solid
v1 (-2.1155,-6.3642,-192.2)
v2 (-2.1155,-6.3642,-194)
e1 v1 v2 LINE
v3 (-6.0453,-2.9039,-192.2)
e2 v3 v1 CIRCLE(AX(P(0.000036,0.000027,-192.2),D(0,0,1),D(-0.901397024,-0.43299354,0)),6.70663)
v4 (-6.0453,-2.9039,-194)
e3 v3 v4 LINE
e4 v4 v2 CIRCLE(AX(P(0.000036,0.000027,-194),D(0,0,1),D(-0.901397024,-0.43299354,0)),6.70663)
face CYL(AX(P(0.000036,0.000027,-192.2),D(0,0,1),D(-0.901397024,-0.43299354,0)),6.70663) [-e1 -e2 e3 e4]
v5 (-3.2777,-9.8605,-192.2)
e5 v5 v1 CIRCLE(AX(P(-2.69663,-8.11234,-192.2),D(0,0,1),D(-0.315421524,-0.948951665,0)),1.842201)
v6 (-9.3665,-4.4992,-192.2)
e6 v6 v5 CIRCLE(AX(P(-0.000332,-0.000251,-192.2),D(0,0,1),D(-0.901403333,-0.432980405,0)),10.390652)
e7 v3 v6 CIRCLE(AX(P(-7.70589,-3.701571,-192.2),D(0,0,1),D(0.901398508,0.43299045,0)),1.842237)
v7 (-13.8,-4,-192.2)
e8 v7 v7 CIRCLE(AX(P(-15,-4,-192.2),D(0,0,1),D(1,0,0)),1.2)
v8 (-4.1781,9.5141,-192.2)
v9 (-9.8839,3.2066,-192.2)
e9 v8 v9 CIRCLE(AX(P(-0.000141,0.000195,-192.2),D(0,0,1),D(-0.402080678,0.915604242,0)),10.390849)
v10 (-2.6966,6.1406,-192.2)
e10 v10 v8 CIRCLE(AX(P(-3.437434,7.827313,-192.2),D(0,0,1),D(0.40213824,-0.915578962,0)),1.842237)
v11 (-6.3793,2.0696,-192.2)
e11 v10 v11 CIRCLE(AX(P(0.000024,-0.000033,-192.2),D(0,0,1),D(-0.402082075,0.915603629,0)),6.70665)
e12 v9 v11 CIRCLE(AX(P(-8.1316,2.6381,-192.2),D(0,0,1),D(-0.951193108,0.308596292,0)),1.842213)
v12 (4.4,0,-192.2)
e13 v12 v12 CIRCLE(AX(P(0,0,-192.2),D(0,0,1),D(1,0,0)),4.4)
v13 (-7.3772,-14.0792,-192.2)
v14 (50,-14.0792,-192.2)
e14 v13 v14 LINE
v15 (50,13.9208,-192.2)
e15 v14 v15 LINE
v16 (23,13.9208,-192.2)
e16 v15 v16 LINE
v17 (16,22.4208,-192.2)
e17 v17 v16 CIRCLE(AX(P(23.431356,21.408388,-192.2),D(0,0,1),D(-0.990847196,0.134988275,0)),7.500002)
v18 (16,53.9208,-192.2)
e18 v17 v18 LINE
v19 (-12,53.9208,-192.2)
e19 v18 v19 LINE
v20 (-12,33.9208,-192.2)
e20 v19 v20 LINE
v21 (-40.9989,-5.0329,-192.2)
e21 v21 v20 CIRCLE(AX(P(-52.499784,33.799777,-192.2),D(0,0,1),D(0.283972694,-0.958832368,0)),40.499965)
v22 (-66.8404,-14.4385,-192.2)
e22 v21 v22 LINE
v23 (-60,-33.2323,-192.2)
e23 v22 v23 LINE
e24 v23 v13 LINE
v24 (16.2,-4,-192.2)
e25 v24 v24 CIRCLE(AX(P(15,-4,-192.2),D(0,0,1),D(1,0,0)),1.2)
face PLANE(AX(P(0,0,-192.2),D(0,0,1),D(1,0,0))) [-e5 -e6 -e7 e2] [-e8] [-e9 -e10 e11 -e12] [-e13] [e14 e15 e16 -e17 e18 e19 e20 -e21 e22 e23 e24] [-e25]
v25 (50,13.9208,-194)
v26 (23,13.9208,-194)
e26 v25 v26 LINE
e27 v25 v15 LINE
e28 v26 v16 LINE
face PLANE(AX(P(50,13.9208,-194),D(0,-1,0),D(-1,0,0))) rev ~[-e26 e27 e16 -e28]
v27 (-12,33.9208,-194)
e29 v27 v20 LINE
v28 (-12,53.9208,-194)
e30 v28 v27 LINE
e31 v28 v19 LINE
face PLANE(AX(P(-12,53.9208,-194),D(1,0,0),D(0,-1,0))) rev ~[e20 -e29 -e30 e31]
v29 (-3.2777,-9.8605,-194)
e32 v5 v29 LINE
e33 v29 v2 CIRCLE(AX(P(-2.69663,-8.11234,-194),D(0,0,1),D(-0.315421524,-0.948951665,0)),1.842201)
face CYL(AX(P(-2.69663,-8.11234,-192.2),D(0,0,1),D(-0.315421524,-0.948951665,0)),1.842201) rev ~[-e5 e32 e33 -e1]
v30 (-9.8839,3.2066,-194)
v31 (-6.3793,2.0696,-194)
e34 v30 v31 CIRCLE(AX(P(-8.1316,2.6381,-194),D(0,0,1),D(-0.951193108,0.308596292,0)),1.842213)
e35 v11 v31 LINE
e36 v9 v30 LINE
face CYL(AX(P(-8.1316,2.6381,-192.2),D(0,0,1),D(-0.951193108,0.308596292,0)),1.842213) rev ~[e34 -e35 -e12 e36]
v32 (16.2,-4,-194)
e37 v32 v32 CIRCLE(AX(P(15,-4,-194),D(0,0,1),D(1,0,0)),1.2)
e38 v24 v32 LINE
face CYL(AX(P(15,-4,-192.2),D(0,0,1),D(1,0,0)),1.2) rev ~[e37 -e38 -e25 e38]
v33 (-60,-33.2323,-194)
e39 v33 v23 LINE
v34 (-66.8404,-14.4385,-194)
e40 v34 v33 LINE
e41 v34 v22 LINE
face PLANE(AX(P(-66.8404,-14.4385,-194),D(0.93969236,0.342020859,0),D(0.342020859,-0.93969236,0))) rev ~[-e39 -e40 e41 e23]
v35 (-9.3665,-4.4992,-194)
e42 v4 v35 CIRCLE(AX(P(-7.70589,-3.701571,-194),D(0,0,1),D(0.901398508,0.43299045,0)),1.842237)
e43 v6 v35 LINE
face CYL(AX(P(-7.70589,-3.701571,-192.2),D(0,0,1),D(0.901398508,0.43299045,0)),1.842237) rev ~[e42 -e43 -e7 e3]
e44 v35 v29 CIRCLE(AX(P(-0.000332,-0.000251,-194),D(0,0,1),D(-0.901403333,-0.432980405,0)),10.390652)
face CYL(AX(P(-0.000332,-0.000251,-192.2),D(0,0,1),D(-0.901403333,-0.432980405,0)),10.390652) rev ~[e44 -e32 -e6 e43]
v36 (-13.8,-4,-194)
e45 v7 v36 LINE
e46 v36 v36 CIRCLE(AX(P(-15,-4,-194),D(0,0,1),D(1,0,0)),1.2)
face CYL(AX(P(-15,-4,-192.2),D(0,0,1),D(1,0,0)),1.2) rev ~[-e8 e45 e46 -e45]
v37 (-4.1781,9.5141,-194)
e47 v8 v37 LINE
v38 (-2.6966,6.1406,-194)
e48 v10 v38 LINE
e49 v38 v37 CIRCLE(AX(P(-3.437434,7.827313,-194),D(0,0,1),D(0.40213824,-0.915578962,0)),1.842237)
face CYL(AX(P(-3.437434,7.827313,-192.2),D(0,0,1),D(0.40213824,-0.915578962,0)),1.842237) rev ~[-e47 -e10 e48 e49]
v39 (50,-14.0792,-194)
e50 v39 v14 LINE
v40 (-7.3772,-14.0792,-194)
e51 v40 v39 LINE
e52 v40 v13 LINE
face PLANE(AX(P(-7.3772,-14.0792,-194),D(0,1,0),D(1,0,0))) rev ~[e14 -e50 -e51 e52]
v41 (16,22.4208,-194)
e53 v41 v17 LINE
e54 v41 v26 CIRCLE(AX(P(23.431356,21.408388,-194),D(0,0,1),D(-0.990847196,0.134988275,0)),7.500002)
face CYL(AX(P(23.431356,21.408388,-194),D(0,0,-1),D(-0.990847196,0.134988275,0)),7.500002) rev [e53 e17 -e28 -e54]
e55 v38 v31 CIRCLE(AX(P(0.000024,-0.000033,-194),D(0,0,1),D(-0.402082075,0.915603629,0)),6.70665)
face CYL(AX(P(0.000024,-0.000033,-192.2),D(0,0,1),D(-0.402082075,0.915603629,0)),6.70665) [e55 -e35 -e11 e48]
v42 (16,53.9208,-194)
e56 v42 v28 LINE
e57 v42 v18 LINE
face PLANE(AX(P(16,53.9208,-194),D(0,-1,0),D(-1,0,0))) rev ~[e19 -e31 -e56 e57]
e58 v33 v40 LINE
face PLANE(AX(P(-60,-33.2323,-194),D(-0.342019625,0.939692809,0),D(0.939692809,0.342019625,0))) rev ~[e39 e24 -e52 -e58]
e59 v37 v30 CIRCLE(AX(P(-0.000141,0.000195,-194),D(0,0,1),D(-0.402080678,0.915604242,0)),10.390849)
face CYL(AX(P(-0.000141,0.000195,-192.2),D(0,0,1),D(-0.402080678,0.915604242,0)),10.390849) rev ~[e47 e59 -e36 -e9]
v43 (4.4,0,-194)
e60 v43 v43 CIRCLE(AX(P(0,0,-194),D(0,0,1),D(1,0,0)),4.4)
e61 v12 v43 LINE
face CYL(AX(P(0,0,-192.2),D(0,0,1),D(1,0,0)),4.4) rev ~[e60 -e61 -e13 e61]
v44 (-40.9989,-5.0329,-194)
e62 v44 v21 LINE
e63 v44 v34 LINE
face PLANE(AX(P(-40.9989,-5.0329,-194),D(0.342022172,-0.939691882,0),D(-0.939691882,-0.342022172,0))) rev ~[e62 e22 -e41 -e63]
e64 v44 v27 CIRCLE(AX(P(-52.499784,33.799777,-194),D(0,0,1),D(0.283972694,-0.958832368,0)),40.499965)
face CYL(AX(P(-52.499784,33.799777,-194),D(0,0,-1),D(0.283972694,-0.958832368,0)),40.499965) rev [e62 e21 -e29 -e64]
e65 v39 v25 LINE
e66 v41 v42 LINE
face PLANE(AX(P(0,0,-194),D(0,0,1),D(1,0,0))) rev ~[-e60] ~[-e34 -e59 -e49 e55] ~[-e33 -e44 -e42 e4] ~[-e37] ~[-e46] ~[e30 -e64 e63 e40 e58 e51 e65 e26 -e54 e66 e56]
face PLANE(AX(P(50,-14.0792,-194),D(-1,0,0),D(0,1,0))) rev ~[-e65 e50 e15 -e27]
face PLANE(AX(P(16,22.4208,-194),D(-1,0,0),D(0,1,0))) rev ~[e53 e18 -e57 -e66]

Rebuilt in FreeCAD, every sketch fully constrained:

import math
import FreeCAD as App
import Part
import Sketcher

V = App.Vector
Q = App.Units.Quantity

doc = App.newDocument("Part")
body = doc.addObject("PartDesign::Body", "Body")

sketch1 = body.newObject("Sketcher::SketchObject", "Sketch")
sketch1.AttachmentSupport = (doc.getObject("XY_Plane"), [""])
sketch1.MapMode = "FlatFace"
sketch1.AttachmentOffset = App.Placement(V(0, 0, -194), App.Rotation())
sketch1.addGeometry([
    Part.LineSegment(V(-60, -33.2323, 0), V(-7.3772, -14.0792, 0)),
    Part.LineSegment(V(-7.3772, -14.0792, 0), V(50, -14.0792, 0)),
    Part.LineSegment(V(50, -14.0792, 0), V(50, 13.9208, 0)),
    Part.LineSegment(V(50, 13.9208, 0), V(23, 13.9208, 0)),
    Part.ArcOfCircle(Part.Circle(V(23.4314, 21.4084, 0), V(0, 0, 1), 7.500044), math.radians(172.242197), math.radians(266.702534)),
    Part.LineSegment(V(16, 22.4208, 0), V(16, 53.9208, 0)),
    Part.LineSegment(V(16, 53.9208, 0), V(-12, 53.9208, 0)),
    Part.LineSegment(V(-12, 53.9208, 0), V(-12, 33.9208, 0)),
    Part.ArcOfCircle(Part.Circle(V(-52.4998, 33.7998, 0), V(0, 0, 1), 40.499991), math.radians(-73.502536), math.radians(0.17118)),
    Part.LineSegment(V(-40.9989, -5.0329, 0), V(-66.8404, -14.4385, 0)),
    Part.LineSegment(V(-66.8404, -14.4385, 0), V(-60, -33.2323, 0)),
], False)
sketch1.addConstraint([
    Sketcher.Constraint("Coincident", 0, 2, 1, 1),
    Sketcher.Constraint("Coincident", 1, 2, 2, 1),
    Sketcher.Constraint("Coincident", 2, 2, 3, 1),
    Sketcher.Constraint("Coincident", 3, 2, 4, 2),
    Sketcher.Constraint("Coincident", 4, 1, 5, 1),
    Sketcher.Constraint("Coincident", 5, 2, 6, 1),
    Sketcher.Constraint("Coincident", 6, 2, 7, 1),
    Sketcher.Constraint("Coincident", 7, 2, 8, 2),
    Sketcher.Constraint("Coincident", 8, 1, 9, 1),
    Sketcher.Constraint("Coincident", 9, 2, 10, 1),
    Sketcher.Constraint("Coincident", 10, 2, 0, 1),
    Sketcher.Constraint("Horizontal", 1),
    Sketcher.Constraint("Vertical", 2),
    Sketcher.Constraint("Horizontal", 3),
    Sketcher.Constraint("Vertical", 5),
    Sketcher.Constraint("Horizontal", 6),
    Sketcher.Constraint("Vertical", 7),
    Sketcher.Constraint("Parallel", 0, 9),
    Sketcher.Constraint("Perpendicular", 9, 10),
    Sketcher.Constraint("Equal", 6, 2),
    Sketcher.Constraint("Radius", 4, Q("7.5 mm")),
    Sketcher.Constraint("Radius", 8, Q("40.5 mm")),
    Sketcher.Constraint("DistanceX", 3, 2, 3, 1, Q("27 mm")),
    Sketcher.Constraint("DistanceX", 6, 2, 6, 1, Q("28 mm")),
    Sketcher.Constraint("DistanceY", 7, 2, 7, 1, Q("20 mm")),
    Sketcher.Constraint("Angle", 0, Q("20 deg")),
    Sketcher.Constraint("Distance", 0, Q("56 mm")),
    Sketcher.Constraint("Distance", 10, Q("20 mm")),
    Sketcher.Constraint("DistanceY", 5, 1, 5, 2, Q("31.5 mm")),
    Sketcher.Constraint("DistanceX", -1, 1, 1, 2, Q("50 mm")),
    Sketcher.Constraint("DistanceX", -1, 1, 4, 1, Q("16 mm")),
    Sketcher.Constraint("DistanceX", 10, 2, -1, 1, Q("60 mm")),
    Sketcher.Constraint("DistanceY", 3, 2, 5, 2, Q("40 mm")),
    Sketcher.Constraint("Distance", 9, Q("27.5 mm")),
    Sketcher.Constraint("DistanceY", 8, 1, -1, 1, Q("5.033 mm")),
])
pad1 = body.newObject("PartDesign::Pad", "Pad")
pad1.Profile = sketch1
pad1.Length = 1.8

sketch2 = body.newObject("Sketcher::SketchObject", "Sketch001")
sketch2.AttachmentSupport = (doc.getObject("XY_Plane"), [""])
sketch2.MapMode = "FlatFace"
sketch2.AttachmentOffset = App.Placement(V(0, 0, -192.2), App.Rotation())
sketch2.addGeometry([
    Part.Circle(V(0, 0, 0), V(0, 0, 1), 4.4),
    Part.Circle(V(15, -4, 0), V(0, 0, 1), 1.2),
    Part.Circle(V(-15, -4, 0), V(0, 0, 1), 1.2),
    Part.ArcOfCircle(Part.Circle(V(-3.4374, 7.8273, 0), V(0, 0, 1), 1.842211), math.radians(-66.28888), math.radians(113.707022)),
    Part.ArcOfCircle(Part.Circle(V(0, 0, 0), V(0, 0, 1), 10.39106), math.radians(113.708594), math.radians(162.025559)),
    Part.ArcOfCircle(Part.Circle(V(-8.1316, 2.6381, 0), V(0, 0, 1), 1.842213), math.radians(162.025343), math.radians(342.025343)),
    Part.ArcOfCircle(Part.Circle(V(0, 0, 0), V(0, 0, 1), 6.70661), math.radians(113.708332), math.radians(162.025677)),
    Part.ArcOfCircle(Part.Circle(V(-7.7059, -3.7016, 0), V(0, 0, 1), 1.842259), math.radians(25.658165), math.radians(205.655362)),
    Part.ArcOfCircle(Part.Circle(V(0, 0, 0), V(0, 0, 1), 10.39106), math.radians(-154.342689), math.radians(-108.387172)),
    Part.ArcOfCircle(Part.Circle(V(-2.6966, -8.1124, 0), V(0, 0, 1), 1.842154), math.radians(-108.387738), math.radians(71.613243)),
    Part.ArcOfCircle(Part.Circle(V(0, 0, 0), V(0, 0, 1), 6.70661), math.radians(-154.342389), math.radians(-108.387131)),
], False)
sketch2.addConstraint([
    Sketcher.Constraint("Tangent", 3, 2, 4, 1),
    Sketcher.Constraint("Tangent", 4, 2, 5, 1),
    Sketcher.Constraint("Tangent", 5, 2, 6, 2),
    Sketcher.Constraint("Tangent", 6, 1, 3, 1),
    Sketcher.Constraint("Tangent", 7, 2, 8, 1),
    Sketcher.Constraint("Tangent", 8, 2, 9, 1),
    Sketcher.Constraint("Tangent", 9, 2, 10, 2),
    Sketcher.Constraint("Tangent", 10, 1, 7, 1),
    Sketcher.Constraint("Coincident", 0, 3, -1, 1),
    Sketcher.Constraint("Coincident", 4, 3, -1, 1),
    Sketcher.Constraint("Coincident", 6, 3, -1, 1),
    Sketcher.Constraint("Coincident", 8, 3, -1, 1),
    Sketcher.Constraint("Coincident", 10, 3, -1, 1),
    Sketcher.Constraint("Equal", 1, 2),
    Sketcher.Constraint("Equal", 5, 7),
    Sketcher.Constraint("Equal", 4, 8),
    Sketcher.Constraint("Symmetric", 1, 3, 2, 3, -2),
    Sketcher.Constraint("Vertical", 9, 3, 6, 1),
    Sketcher.Constraint("Diameter", 0, Q("8.8 mm")),
    Sketcher.Constraint("Diameter", 1, Q("2.4 mm")),
    Sketcher.Constraint("DistanceX", -1, 1, 1, 3, Q("15 mm")),
    Sketcher.Constraint("DistanceY", 1, 3, -1, 1, Q("4 mm")),
    Sketcher.Constraint("Radius", 4, Q("10.391 mm")),
    Sketcher.Constraint("Radius", 3, Q("1.8422 mm")),
    Sketcher.Constraint("DistanceX", 7, 2, 9, 3, Q("6.67 mm")),
    Sketcher.Constraint("DistanceY", -1, 1, 5, 3, Q("2.638 mm")),
    Sketcher.Constraint("DistanceX", 7, 3, -1, 1, Q("7.706 mm")),
])
pocket1 = body.newObject("PartDesign::Pocket", "Pocket")
pocket1.Profile = sketch2
pocket1.Length = 30

doc.recompute()
